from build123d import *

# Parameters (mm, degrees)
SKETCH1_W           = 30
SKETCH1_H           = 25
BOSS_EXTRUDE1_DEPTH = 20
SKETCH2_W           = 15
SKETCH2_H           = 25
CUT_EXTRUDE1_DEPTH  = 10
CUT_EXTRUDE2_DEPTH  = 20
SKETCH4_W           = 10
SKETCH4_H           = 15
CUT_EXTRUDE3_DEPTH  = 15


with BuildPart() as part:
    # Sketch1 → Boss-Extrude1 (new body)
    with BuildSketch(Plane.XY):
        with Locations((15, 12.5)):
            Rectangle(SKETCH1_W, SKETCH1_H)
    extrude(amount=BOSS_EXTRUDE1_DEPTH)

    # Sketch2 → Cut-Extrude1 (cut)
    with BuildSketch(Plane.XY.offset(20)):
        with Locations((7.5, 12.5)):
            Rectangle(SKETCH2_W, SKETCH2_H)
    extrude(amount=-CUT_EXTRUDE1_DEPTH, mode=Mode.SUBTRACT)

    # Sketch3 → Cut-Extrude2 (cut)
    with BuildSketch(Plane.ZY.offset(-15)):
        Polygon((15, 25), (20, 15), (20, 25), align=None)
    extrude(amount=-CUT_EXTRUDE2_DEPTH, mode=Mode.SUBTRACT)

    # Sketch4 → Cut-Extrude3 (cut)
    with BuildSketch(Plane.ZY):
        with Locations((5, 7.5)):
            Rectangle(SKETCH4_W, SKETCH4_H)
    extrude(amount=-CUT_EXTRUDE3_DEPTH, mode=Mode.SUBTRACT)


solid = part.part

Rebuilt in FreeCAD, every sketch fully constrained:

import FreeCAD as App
import Part
import Sketcher
Q = App.Units.Quantity

doc = App.newDocument("Part")
params = doc.addObject("Spreadsheet::Sheet", "Params")
for row, (alias, value) in enumerate([
    ("sketch1_width", "30 mm"),
    ("sketch1_height", "25 mm"),
    ("pad1_length", "20 mm"),
    ("sketch2_width", "15 mm"),
    ("sketch2_height", "25 mm"),
    ("pocket1_length", "10 mm"),
    ("sketch3_width", "10 mm"),
    ("sketch3_height", "5 mm"),
    ("pocket2_length", "20 mm"),
    ("sketch4_width", "15 mm"),
    ("sketch4_height", "10 mm"),
    ("pocket3_length", "15 mm"),
], start=1):
    params.set(f"A{row}", alias)
    params.set(f"B{row}", "=" + value)
    params.setAlias(f"B{row}", alias)

body = doc.addObject("PartDesign::Body", "Body")

sketch1 = doc.addObject("Sketcher::SketchObject", "Sketch")
body.addObject(sketch1)
sketch1.AttachmentSupport = (doc.XY_Plane, [""])
sketch1.MapMode = "FlatFace"
sketch1.addGeometry([
    Part.LineSegment(App.Vector(0, 25, 0), App.Vector(0, 0, 0)),
    Part.LineSegment(App.Vector(0, 0, 0), App.Vector(30, 0, 0)),
    Part.LineSegment(App.Vector(30, 0, 0), App.Vector(30, 25, 0)),
    Part.LineSegment(App.Vector(30, 25, 0), App.Vector(0, 25, 0)),
], False)
sketch1.addConstraint([
    Sketcher.Constraint("Coincident", 0, 2, 1, 1),
    Sketcher.Constraint("Coincident", 1, 2, 2, 1),
    Sketcher.Constraint("Coincident", 2, 2, 3, 1),
    Sketcher.Constraint("Coincident", 3, 2, 0, 1),
    Sketcher.Constraint("Vertical", 0),
    Sketcher.Constraint("Horizontal", 1),
    Sketcher.Constraint("Vertical", 2),
    Sketcher.Constraint("Horizontal", 3),
    Sketcher.Constraint("Coincident", 0, 2, -1, 1),
    Sketcher.Constraint("DistanceX", 1, 1, 1, 2, Q("30 mm")),
    Sketcher.Constraint("DistanceY", 0, 2, 0, 1, Q("25 mm")),
])
sketch1.setExpression("Constraints[9]", "Params.sketch1_width")
sketch1.setExpression("Constraints[10]", "Params.sketch1_height")
pad1 = doc.addObject("PartDesign::Pad", "Pad")
body.addObject(pad1)
pad1.Profile = sketch1
pad1.setExpression("Length", "Params.pad1_length")

sketch2 = doc.addObject("Sketcher::SketchObject", "Sketch001")
body.addObject(sketch2)
sketch2.AttachmentSupport = (doc.XY_Plane, [""])
sketch2.MapMode = "FlatFace"
sketch2.AttachmentOffset = App.Placement(App.Vector(0, 0, 20), App.Rotation())
sketch2.addGeometry([
    Part.LineSegment(App.Vector(0, 25, 0), App.Vector(0, 0, 0)),
    Part.LineSegment(App.Vector(0, 0, 0), App.Vector(15, 0, 0)),
    Part.LineSegment(App.Vector(15, 0, 0), App.Vector(15, 25, 0)),
    Part.LineSegment(App.Vector(15, 25, 0), App.Vector(0, 25, 0)),
], False)
sketch2.addConstraint([
    Sketcher.Constraint("Coincident", 0, 2, 1, 1),
    Sketcher.Constraint("Coincident", 1, 2, 2, 1),
    Sketcher.Constraint("Coincident", 2, 2, 3, 1),
    Sketcher.Constraint("Coincident", 3, 2, 0, 1),
    Sketcher.Constraint("Vertical", 0),
    Sketcher.Constraint("Horizontal", 1),
    Sketcher.Constraint("Vertical", 2),
    Sketcher.Constraint("Horizontal", 3),
    Sketcher.Constraint("Coincident", 0, 2, -1, 1),
    Sketcher.Constraint("DistanceX", 1, 1, 1, 2, Q("15 mm")),
    Sketcher.Constraint("DistanceY", 0, 2, 0, 1, Q("25 mm")),
])
sketch2.setExpression("Constraints[9]", "Params.sketch2_width")
sketch2.setExpression("Constraints[10]", "Params.sketch2_height")
pocket1 = doc.addObject("PartDesign::Pocket", "Pocket")
body.addObject(pocket1)
pocket1.Profile = sketch2
pocket1.setExpression("Length", "Params.pocket1_length")

sketch3 = doc.addObject("Sketcher::SketchObject", "Sketch002")
body.addObject(sketch3)
sketch3.AttachmentSupport = (doc.YZ_Plane, [""])
sketch3.MapMode = "FlatFace"
sketch3.AttachmentOffset = App.Placement(App.Vector(0, 0, 15), App.Rotation())
sketch3.addGeometry([
    Part.LineSegment(App.Vector(25, 15, 0), App.Vector(15, 20, 0)),
    Part.LineSegment(App.Vector(15, 20, 0), App.Vector(25, 20, 0)),
    Part.LineSegment(App.Vector(25, 20, 0), App.Vector(25, 15, 0)),
], False)
sketch3.addConstraint([
    Sketcher.Constraint("Coincident", 0, 2, 1, 1),
    Sketcher.Constraint("Coincident", 1, 2, 2, 1),
    Sketcher.Constraint("Coincident", 2, 2, 0, 1),
    Sketcher.Constraint("Horizontal", 1),
    Sketcher.Constraint("Vertical", 2),
    Sketcher.Constraint("DistanceX", 1, 1, 1, 2, Q("10 mm")),
    Sketcher.Constraint("DistanceY", 2, 2, 2, 1, Q("5 mm")),
    Sketcher.Constraint("DistanceX", -1, 1, 0, 2, Q("15 mm")),
    Sketcher.Constraint("DistanceY", -1, 1, 0, 2, Q("20 mm")),
])
sketch3.setExpression("Constraints[5]", "Params.sketch3_width")
sketch3.setExpression("Constraints[6]", "Params.sketch3_height")
pocket2 = doc.addObject("PartDesign::Pocket", "Pocket001")
body.addObject(pocket2)
pocket2.Profile = sketch3
pocket2.setExpression("Length", "Params.pocket2_length")
pocket2.Reversed = True

sketch4 = doc.addObject("Sketcher::SketchObject", "Sketch003")
body.addObject(sketch4)
sketch4.AttachmentSupport = (doc.YZ_Plane, [""])
sketch4.MapMode = "FlatFace"
sketch4.addGeometry([
    Part.LineSegment(App.Vector(15, 0, 0), App.Vector(0, 0, 0)),
    Part.LineSegment(App.Vector(0, 0, 0), App.Vector(0, 10, 0)),
    Part.LineSegment(App.Vector(0, 10, 0), App.Vector(15, 10, 0)),
    Part.LineSegment(App.Vector(15, 10, 0), App.Vector(15, 0, 0)),
], False)
sketch4.addConstraint([
    Sketcher.Constraint("Coincident", 0, 2, 1, 1),
    Sketcher.Constraint("Coincident", 1, 2, 2, 1),
    Sketcher.Constraint("Coincident", 2, 2, 3, 1),
    Sketcher.Constraint("Coincident", 3, 2, 0, 1),
    Sketcher.Constraint("Horizontal", 0),
    Sketcher.Constraint("Vertical", 1),
    Sketcher.Constraint("Horizontal", 2),
    Sketcher.Constraint("Vertical", 3),
    Sketcher.Constraint("Coincident", 0, 2, -1, 1),
    Sketcher.Constraint("DistanceX", 0, 2, 0, 1, Q("15 mm")),
    Sketcher.Constraint("DistanceY", 1, 1, 1, 2, Q("10 mm")),
])
sketch4.setExpression("Constraints[9]", "Params.sketch4_width")
sketch4.setExpression("Constraints[10]", "Params.sketch4_height")
pocket3 = doc.addObject("PartDesign::Pocket", "Pocket002")
body.addObject(pocket3)
pocket3.Profile = sketch4
pocket3.setExpression("Length", "Params.pocket3_length")
pocket3.Reversed = True

doc.recompute()
